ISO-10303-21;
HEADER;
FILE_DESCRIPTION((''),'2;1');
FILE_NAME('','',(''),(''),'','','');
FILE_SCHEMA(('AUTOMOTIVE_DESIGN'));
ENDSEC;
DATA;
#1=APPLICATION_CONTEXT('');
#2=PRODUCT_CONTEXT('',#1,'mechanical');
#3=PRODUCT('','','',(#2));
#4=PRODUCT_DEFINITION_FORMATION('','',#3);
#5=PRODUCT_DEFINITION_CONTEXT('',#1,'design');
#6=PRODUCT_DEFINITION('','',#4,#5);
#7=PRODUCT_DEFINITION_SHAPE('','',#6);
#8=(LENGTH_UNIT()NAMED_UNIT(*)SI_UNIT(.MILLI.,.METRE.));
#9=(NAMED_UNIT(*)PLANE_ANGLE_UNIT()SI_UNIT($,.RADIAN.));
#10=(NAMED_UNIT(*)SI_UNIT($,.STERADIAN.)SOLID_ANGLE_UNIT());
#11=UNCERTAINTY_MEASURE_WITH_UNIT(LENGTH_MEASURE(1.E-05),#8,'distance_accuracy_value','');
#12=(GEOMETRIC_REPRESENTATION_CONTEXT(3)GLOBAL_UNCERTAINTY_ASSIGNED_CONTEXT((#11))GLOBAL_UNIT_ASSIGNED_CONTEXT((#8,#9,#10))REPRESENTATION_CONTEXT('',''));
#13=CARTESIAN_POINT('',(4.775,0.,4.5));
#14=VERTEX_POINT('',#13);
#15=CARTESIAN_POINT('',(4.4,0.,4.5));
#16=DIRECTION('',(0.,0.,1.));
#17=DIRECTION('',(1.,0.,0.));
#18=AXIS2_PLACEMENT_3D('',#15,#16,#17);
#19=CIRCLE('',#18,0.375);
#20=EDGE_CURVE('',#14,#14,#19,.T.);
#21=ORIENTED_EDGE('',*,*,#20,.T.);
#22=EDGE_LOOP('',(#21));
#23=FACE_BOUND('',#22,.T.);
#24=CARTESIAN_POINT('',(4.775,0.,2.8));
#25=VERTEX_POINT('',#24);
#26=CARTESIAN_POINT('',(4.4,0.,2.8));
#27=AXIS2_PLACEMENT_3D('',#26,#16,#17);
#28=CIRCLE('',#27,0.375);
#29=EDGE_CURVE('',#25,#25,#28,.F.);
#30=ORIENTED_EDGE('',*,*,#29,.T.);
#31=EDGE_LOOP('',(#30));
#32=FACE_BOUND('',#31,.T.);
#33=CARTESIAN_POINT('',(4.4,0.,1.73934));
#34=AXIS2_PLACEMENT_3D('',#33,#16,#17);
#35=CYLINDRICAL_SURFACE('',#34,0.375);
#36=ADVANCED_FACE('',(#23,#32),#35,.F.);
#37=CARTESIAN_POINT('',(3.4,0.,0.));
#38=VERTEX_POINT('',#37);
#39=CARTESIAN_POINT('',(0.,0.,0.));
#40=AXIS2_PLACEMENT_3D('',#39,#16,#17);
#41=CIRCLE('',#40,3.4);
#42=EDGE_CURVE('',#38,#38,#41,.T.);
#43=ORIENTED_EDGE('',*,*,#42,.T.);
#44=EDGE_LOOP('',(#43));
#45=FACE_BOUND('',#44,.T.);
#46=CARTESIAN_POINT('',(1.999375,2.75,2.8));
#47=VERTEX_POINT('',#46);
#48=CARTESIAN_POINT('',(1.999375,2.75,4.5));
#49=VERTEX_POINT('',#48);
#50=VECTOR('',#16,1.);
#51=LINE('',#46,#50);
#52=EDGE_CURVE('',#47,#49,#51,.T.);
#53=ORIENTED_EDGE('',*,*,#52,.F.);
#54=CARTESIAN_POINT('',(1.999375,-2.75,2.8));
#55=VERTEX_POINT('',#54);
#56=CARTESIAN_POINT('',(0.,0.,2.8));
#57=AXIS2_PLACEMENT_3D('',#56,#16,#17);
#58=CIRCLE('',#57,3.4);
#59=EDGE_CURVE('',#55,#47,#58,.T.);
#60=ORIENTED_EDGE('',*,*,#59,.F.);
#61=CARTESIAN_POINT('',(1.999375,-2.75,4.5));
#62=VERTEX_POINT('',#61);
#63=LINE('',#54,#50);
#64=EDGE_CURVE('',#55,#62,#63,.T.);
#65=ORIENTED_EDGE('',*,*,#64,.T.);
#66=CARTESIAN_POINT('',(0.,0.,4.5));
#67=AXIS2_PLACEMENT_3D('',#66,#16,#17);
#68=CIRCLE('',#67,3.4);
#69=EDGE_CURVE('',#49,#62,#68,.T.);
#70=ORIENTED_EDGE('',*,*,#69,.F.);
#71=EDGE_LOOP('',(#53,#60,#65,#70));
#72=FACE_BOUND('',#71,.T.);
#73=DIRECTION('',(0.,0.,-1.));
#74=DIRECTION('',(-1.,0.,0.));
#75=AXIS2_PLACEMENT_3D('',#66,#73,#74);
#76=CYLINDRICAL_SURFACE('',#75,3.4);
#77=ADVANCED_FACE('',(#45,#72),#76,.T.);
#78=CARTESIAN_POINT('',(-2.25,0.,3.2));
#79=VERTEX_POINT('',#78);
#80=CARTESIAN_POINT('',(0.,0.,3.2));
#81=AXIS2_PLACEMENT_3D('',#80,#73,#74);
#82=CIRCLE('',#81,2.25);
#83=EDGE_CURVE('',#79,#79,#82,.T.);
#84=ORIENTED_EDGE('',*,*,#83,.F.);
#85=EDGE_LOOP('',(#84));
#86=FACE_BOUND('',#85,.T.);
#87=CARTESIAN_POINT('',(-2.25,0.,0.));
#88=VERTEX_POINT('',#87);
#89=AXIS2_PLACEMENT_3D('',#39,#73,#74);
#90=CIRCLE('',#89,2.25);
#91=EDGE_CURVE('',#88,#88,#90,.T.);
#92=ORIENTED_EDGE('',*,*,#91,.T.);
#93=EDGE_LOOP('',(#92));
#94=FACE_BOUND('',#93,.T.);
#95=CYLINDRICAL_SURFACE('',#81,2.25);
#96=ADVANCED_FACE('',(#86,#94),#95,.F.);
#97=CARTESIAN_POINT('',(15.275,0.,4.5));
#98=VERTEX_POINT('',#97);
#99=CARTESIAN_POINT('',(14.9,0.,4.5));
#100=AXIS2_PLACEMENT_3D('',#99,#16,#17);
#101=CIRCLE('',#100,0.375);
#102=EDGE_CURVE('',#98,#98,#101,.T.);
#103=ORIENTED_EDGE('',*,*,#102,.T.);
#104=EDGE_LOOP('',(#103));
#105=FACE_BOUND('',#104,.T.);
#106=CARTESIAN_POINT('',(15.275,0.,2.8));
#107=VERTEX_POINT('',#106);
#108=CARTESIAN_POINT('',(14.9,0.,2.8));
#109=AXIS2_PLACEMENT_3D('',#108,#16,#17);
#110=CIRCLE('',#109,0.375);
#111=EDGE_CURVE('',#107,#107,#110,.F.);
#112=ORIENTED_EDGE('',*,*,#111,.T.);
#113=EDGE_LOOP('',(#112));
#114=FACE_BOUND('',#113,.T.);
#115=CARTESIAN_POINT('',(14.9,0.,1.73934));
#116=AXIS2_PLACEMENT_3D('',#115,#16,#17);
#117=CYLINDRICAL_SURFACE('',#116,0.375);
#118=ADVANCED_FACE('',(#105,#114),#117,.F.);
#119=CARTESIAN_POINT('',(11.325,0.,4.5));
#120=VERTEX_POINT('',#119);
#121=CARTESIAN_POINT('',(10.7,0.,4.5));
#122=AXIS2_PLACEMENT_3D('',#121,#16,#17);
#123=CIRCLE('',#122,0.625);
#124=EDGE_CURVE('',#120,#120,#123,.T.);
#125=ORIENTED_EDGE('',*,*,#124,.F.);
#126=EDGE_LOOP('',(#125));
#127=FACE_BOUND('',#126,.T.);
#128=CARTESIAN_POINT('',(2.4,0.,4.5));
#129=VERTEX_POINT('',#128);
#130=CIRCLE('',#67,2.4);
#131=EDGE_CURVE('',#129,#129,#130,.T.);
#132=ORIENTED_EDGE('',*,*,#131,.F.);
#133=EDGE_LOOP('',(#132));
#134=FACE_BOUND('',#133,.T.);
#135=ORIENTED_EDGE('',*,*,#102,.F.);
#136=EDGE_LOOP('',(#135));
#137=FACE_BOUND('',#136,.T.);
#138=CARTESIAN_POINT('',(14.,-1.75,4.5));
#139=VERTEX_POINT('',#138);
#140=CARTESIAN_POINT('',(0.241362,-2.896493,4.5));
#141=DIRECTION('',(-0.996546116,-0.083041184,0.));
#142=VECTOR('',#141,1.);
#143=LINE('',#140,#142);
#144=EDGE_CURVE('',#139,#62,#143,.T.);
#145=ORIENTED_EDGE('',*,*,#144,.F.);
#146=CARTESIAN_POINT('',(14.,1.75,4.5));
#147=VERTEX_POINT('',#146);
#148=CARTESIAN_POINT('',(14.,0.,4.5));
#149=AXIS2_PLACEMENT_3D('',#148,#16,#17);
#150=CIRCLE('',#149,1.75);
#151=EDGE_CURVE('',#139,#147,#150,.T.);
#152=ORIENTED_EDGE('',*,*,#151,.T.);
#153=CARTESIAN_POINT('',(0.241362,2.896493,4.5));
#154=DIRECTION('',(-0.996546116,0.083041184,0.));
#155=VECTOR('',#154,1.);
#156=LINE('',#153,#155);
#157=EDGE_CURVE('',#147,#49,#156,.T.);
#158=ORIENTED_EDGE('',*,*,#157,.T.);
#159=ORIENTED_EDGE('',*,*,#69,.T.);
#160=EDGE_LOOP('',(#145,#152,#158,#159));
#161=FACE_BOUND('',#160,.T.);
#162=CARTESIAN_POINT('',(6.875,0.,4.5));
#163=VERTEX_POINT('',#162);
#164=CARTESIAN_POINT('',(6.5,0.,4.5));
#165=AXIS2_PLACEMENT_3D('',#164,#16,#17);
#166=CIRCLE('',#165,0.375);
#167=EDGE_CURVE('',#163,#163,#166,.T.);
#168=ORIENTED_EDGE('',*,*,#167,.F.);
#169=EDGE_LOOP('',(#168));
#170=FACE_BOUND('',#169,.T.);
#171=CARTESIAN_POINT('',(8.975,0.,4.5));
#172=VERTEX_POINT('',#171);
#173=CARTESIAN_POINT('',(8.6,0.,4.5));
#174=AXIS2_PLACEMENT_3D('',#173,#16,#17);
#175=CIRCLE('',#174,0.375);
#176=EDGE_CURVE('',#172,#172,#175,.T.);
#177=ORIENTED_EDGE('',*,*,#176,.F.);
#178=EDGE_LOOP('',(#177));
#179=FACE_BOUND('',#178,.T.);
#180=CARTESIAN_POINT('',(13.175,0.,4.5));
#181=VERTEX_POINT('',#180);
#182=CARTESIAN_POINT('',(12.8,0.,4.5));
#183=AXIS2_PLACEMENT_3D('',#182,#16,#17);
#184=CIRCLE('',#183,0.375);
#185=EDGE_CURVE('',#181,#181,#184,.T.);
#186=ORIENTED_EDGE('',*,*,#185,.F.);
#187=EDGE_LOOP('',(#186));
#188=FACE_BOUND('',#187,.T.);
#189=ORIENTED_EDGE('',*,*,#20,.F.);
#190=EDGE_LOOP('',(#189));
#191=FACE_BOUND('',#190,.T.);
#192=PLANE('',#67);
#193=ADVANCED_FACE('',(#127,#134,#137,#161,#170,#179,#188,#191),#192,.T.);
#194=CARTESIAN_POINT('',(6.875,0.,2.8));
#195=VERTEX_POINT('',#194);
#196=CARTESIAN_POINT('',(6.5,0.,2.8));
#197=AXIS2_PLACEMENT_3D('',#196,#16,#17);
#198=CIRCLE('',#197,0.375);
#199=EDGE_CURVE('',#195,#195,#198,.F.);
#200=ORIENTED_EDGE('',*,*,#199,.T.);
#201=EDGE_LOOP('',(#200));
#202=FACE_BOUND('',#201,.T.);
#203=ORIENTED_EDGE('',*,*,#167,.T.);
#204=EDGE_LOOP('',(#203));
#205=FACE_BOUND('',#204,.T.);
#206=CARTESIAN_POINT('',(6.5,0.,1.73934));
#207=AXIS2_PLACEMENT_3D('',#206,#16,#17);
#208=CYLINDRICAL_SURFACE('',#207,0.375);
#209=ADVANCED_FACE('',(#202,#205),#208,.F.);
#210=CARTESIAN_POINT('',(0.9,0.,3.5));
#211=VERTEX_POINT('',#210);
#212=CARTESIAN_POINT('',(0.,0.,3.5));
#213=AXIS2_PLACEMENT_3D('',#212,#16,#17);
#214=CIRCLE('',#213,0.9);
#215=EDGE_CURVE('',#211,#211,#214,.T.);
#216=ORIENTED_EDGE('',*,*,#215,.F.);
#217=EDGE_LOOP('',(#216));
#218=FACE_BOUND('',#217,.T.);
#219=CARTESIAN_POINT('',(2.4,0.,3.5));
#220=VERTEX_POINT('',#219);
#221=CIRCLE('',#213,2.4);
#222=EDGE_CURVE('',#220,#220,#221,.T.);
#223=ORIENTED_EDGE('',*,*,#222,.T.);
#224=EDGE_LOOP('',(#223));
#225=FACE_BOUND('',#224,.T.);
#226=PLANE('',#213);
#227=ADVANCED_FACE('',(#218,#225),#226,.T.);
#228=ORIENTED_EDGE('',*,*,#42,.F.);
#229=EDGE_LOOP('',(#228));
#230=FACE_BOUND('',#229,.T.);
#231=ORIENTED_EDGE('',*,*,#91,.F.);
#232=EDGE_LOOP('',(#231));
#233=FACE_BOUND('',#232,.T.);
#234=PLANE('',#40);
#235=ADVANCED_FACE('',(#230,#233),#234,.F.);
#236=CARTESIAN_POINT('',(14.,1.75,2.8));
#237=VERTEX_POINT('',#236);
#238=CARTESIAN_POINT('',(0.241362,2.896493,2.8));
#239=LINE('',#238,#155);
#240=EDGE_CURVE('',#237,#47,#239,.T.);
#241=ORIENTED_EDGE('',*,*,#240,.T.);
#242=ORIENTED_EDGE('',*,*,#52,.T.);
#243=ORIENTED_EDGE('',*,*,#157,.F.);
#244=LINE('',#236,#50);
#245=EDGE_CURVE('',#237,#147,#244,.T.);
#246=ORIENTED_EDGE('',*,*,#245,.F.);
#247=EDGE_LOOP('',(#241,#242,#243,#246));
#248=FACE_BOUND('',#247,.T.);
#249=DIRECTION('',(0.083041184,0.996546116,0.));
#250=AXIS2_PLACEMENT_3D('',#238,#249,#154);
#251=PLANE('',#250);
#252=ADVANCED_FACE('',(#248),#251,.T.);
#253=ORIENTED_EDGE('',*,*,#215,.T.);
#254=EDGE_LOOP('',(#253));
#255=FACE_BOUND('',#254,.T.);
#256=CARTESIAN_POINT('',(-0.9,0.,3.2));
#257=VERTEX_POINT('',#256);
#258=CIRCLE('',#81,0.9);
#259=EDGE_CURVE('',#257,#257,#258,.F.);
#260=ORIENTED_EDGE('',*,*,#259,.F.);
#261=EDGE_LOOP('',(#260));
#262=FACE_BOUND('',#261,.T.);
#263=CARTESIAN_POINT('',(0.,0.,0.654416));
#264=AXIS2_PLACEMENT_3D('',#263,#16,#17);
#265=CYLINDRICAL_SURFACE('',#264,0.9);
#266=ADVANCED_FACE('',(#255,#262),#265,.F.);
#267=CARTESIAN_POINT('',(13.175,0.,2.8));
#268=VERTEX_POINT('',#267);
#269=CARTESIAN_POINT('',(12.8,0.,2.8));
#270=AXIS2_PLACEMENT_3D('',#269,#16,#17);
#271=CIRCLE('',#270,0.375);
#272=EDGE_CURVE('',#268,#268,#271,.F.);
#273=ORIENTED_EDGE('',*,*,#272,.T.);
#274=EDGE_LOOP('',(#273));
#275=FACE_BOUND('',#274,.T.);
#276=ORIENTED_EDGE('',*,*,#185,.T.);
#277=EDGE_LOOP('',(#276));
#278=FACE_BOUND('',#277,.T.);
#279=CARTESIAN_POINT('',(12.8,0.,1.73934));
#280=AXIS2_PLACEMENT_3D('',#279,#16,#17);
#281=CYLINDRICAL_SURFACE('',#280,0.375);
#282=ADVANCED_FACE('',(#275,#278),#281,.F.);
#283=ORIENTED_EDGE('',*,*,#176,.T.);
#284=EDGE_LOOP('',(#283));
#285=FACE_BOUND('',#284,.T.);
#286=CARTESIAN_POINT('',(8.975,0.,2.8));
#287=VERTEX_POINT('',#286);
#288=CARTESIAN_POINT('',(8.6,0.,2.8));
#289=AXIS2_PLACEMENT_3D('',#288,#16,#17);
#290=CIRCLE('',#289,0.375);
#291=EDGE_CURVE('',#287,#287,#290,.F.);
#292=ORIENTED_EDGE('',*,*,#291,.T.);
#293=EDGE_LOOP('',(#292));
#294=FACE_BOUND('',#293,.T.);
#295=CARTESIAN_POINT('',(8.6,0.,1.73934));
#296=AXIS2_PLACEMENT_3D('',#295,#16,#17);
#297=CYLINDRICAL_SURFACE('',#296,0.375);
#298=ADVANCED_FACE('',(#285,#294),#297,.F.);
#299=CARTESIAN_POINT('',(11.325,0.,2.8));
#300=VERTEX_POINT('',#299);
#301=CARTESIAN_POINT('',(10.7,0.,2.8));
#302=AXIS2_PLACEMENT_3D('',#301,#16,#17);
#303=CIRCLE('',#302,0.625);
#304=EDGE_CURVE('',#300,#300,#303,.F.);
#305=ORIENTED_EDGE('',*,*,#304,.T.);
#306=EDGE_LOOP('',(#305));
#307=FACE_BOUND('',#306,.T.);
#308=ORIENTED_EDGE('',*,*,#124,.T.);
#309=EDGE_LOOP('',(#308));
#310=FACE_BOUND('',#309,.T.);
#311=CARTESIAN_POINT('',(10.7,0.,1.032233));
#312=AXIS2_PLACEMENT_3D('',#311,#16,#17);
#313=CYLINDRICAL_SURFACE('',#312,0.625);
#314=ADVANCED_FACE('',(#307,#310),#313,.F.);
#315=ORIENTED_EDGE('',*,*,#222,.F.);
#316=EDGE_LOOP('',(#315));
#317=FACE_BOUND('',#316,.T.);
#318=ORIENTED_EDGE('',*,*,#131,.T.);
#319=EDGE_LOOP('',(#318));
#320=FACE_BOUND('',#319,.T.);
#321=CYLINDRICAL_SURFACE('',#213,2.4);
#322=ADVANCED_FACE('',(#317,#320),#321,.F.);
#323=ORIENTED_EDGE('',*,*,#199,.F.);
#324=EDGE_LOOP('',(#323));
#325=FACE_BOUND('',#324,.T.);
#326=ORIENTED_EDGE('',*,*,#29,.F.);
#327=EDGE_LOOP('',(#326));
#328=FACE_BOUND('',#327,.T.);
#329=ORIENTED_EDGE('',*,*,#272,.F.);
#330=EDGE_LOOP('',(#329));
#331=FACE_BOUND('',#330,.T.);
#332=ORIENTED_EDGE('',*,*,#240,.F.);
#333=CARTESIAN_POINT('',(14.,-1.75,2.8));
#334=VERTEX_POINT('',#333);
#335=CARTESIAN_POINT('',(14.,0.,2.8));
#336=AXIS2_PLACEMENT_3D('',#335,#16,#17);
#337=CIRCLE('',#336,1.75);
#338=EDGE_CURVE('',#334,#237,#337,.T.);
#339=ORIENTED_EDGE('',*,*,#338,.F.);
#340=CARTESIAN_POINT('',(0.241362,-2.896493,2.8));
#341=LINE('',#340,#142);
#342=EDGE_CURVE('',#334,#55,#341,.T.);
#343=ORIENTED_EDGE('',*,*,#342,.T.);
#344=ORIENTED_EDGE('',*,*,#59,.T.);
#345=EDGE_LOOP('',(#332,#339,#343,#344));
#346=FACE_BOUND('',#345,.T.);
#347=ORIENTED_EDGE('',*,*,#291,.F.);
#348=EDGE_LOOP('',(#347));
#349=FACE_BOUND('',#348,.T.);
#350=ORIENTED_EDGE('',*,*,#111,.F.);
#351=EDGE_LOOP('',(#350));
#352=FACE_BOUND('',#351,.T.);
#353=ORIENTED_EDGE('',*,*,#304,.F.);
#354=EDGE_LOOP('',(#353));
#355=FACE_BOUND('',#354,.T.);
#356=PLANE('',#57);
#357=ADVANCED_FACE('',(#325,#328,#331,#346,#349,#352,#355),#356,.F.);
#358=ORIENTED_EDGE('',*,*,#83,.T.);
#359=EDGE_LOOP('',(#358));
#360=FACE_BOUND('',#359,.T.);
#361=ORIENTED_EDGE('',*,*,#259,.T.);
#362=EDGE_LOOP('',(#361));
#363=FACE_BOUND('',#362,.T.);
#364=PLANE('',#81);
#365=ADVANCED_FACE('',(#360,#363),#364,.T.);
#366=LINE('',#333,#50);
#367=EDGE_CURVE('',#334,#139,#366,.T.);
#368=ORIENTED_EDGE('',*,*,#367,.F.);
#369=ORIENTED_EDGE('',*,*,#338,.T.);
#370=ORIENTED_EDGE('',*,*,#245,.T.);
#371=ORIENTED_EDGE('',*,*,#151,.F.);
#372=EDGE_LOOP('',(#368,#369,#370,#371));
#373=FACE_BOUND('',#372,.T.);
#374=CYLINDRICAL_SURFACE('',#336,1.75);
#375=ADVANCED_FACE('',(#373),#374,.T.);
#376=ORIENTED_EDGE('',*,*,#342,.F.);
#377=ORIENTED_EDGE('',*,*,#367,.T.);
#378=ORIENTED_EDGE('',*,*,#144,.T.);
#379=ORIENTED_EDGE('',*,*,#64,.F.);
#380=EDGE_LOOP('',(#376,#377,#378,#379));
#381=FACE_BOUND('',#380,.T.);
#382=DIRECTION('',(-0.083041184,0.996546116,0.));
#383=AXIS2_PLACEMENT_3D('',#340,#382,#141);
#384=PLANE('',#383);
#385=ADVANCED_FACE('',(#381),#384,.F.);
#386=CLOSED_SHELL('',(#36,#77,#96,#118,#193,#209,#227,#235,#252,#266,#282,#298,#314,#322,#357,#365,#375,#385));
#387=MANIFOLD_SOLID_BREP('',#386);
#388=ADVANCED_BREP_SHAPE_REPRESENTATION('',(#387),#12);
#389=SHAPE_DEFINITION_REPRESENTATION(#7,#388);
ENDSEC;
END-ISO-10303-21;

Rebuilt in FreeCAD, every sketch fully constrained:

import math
import FreeCAD as App
import Part
import Sketcher

V = App.Vector

doc = App.newDocument("Part")
body = doc.addObject("PartDesign::Body", "Body")

# Sketch on XY plane
sketch1 = body.newObject("Sketcher::SketchObject", "Sketch")
sketch1.AttachmentSupport = (doc.getObject("XY_Plane"), [""])
sketch1.MapMode = "FlatFace"
sketch1.addGeometry(Part.Circle(V(0, 0, 0), V(0, 0, 1), 3.4), False)
sketch1.addConstraint([
    Sketcher.Constraint("Coincident", 0, 3, -1, 1),
    Sketcher.Constraint("Diameter", 0, 6.8),
])
pad1 = body.newObject("PartDesign::Pad", "Pad")
pad1.Profile = sketch1
pad1.Length = 4.5

# Sketch on XY plane
sketch2 = body.newObject("Sketcher::SketchObject", "Sketch001")
sketch2.AttachmentSupport = (doc.getObject("XY_Plane"), [""])
sketch2.MapMode = "FlatFace"
sketch2.addGeometry(Part.Circle(V(0, 0, 0), V(0, 0, 1), 2.2), False)
sketch2.addConstraint([
    Sketcher.Constraint("Coincident", 0, 3, -1, 1),
    Sketcher.Constraint("Diameter", 0, 4.5),
])
pocket1 = body.newObject("PartDesign::Pocket", "Pocket")
pocket1.Profile = sketch2
pocket1.Length = 3.2
pocket1.Reversed = True

# Sketch on XY plane
sketch3 = body.newObject("Sketcher::SketchObject", "Sketch002")
sketch3.AttachmentSupport = (doc.getObject("XY_Plane"), [""])
sketch3.MapMode = "FlatFace"
sketch3.AttachmentOffset = App.Placement(V(0, 0, 4.5), App.Rotation())
sketch3.addGeometry(Part.Circle(V(0, 0, 0), V(0, 0, 1), 2.4), False)
sketch3.addConstraint([
    Sketcher.Constraint("Coincident", 0, 3, -1, 1),
    Sketcher.Constraint("Diameter", 0, 4.8),
])
pocket2 = body.newObject("PartDesign::Pocket", "Pocket001")
pocket2.Profile = sketch3
pocket2.Length = 1

# Sketch on XY plane
sketch4 = body.newObject("Sketcher::SketchObject", "Sketch003")
sketch4.AttachmentSupport = (doc.getObject("XY_Plane"), [""])
sketch4.MapMode = "FlatFace"
sketch4.AttachmentOffset = App.Placement(V(0, 0, 3.5), App.Rotation())
sketch4.addGeometry(Part.Circle(V(0, 0, 0), V(0, 0, 1), 0.9), False)
sketch4.addConstraint([
    Sketcher.Constraint("Coincident", 0, 3, -1, 1),
    Sketcher.Constraint("Diameter", 0, 1.8),
])
pocket3 = body.newObject("PartDesign::Pocket", "Pocket002")
pocket3.Profile = sketch4
pocket3.Length = 0.3

# Sketch on XY plane
sketch5 = body.newObject("Sketcher::SketchObject", "Sketch004")
sketch5.AttachmentSupport = (doc.getObject("XY_Plane"), [""])
sketch5.MapMode = "FlatFace"
sketch5.AttachmentOffset = App.Placement(V(0, 0, 4.5), App.Rotation())
sketch5.addGeometry([
    Part.LineSegment(V(2, -2.8, 0), V(14, -1.8, 0)),
    Part.ArcOfCircle(Part.Circle(V(14, 0, 0), V(0, 0, 1), 1.8), math.radians(-90), math.radians(90)),
    Part.LineSegment(V(14, 1.8, 0), V(2, 2.8, 0)),
    Part.ArcOfCircle(Part.Circle(V(0, 0, 0), V(0, 0, 1), 3.4), math.radians(-54), math.radians(54)),
], False)
sketch5.addConstraint([
    Sketcher.Constraint("Coincident", 0, 2, 1, 1),
    Sketcher.Constraint("Coincident", 1, 2, 2, 1),
    Sketcher.Constraint("Coincident", 2, 2, 3, 2),
    Sketcher.Constraint("Coincident", 3, 1, 0, 1),
    Sketcher.Constraint("Coincident", 3, 3, -1, 1),
    Sketcher.Constraint("Symmetric", 0, 2, 1, 2, -1),
    Sketcher.Constraint("Vertical", 1, 3, 0, 2),
    Sketcher.Constraint("Vertical", 2, 2, 3, 1),
    Sketcher.Constraint("Radius", 3, 3.4),
    Sketcher.Constraint("Radius", 1, 1.75),
    Sketcher.Constraint("DistanceX", -1, 1, 1, 3, 14.0),
    Sketcher.Constraint("DistanceY", 1, 2, 2, 2, 1.0),
])
pad2 = body.newObject("PartDesign::Pad", "Pad001")
pad2.Profile = sketch5
pad2.Length = 1.7
pad2.Reversed = True

# Sketch on XY plane
sketch6 = body.newObject("Sketcher::SketchObject", "Sketch005")
sketch6.AttachmentSupport = (doc.getObject("XY_Plane"), [""])
sketch6.MapMode = "FlatFace"
sketch6.AttachmentOffset = App.Placement(V(0, 0, 4.5), App.Rotation())
sketch6.addGeometry(Part.Circle(V(4.4, 0, 0), V(0, 0, 1), 0.38), False)
sketch6.addConstraint([
    Sketcher.Constraint("PointOnObject", 0, 3, -1),
    Sketcher.Constraint("Diameter", 0, 0.75),
    Sketcher.Constraint("DistanceX", -1, 1, 0, 3, 4.4),
])
pocket4 = body.newObject("PartDesign::Pocket", "Pocket003")
pocket4.Profile = sketch6
pocket4.Length = 1.7
doc.recompute()

linearpattern = body.newObject("PartDesign::LinearPattern", "LinearPattern")
linearpattern.Originals = [pocket4]
linearpattern.Direction = (doc.getObject("X_Axis"), [""])
linearpattern.Mode = "offset"
linearpattern.Offset = 2.1
linearpattern.Occurrences = 6
body.Tip = linearpattern

# Sketch on XY plane
sketch7 = body.newObject("Sketcher::SketchObject", "Sketch006")
sketch7.AttachmentSupport = (doc.getObject("XY_Plane"), [""])
sketch7.MapMode = "FlatFace"
sketch7.AttachmentOffset = App.Placement(V(0, 0, 4.5), App.Rotation())
sketch7.addGeometry(Part.Circle(V(10.7, 0, 0), V(0, 0, 1), 0.6), False)
sketch7.addConstraint([
    Sketcher.Constraint("PointOnObject", 0, 3, -1),
    Sketcher.Constraint("Diameter", 0, 1.25),
    Sketcher.Constraint("DistanceX", -1, 1, 0, 3, 10.7),
])
pocket5 = body.newObject("PartDesign::Pocket", "Pocket004")
pocket5.Profile = sketch7
pocket5.Length = 1.7

doc.recompute()
